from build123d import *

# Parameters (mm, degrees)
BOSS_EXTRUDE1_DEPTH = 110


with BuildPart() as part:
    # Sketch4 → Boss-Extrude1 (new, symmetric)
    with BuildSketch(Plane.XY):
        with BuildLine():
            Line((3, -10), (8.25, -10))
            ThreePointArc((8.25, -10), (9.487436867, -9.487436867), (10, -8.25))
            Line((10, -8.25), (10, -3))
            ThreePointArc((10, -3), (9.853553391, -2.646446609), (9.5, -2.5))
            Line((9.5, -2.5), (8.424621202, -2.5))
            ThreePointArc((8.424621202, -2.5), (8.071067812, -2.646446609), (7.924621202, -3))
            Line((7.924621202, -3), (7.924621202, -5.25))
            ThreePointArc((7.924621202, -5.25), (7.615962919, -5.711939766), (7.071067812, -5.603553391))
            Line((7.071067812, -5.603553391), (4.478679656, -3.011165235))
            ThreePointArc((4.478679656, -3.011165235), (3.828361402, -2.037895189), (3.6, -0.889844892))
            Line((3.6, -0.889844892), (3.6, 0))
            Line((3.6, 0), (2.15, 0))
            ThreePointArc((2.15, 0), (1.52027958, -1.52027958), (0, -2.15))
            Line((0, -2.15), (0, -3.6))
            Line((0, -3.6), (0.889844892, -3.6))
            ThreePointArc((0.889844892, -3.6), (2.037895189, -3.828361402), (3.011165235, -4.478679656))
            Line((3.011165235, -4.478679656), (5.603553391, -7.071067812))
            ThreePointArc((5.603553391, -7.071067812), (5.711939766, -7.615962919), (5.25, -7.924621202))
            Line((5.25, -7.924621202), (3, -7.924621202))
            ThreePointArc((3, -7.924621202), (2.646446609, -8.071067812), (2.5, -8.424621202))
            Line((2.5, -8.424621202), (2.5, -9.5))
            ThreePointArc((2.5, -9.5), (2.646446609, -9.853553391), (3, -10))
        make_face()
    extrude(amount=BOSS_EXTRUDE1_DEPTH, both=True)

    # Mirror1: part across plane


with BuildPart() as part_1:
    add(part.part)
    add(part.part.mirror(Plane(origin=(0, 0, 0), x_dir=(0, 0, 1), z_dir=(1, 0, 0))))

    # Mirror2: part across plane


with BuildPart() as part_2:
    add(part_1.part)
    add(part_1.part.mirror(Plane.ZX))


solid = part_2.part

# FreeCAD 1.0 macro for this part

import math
import FreeCAD as App
import Part
import Sketcher

V = App.Vector
Q = App.Units.Quantity

doc = App.newDocument("Part")
body = doc.addObject("PartDesign::Body", "Body")

# Sketch on XY plane
sketch1 = doc.addObject("Sketcher::SketchObject", "Sketch")
body.addObject(sketch1)
sketch1.AttachmentSupport = (doc.XY_Plane, [""])
sketch1.MapMode = "FlatFace"
sketch1.addGeometry([
    Part.LineSegment(V(3, -10, 0), V(8.25, -10, 0)),  # 0
    Part.ArcOfCircle(Part.Circle(V(8.25, -8.25, 0), V(0, 0, 1), 1.75), math.radians(-90), math.radians(0)),  # 1
    Part.LineSegment(V(10, -8.25, 0), V(10, -3, 0)),  # 2
    Part.ArcOfCircle(Part.Circle(V(9.5, -3, 0), V(0, 0, 1), 0.5), math.radians(0), math.radians(90)),  # 3
    Part.LineSegment(V(9.5, -2.5, 0), V(8.42, -2.5, 0)),  # 4
    Part.ArcOfCircle(Part.Circle(V(8.42, -3, 0), V(0, 0, 1), 0.5), math.radians(90), math.radians(180)),  # 5
    Part.LineSegment(V(7.92, -3, 0), V(7.92, -5.25, 0)),  # 6
    Part.ArcOfCircle(Part.Circle(V(7.42, -5.25, 0), V(0, 0, 1), 0.5), math.radians(-135), math.radians(0)),  # 7
    Part.LineSegment(V(7.07, -5.6, 0), V(4.48, -3.01, 0)),  # 8
    Part.ArcOfCircle(Part.Circle(V(6.6, -0.89, 0), V(0, 0, 1), 3), math.radians(180), math.radians(225)),  # 9
    Part.LineSegment(V(3.6, -0.89, 0), V(3.6, 0, 0)),  # 10
    Part.LineSegment(V(3.6, 0, 0), V(2.15, 0, 0)),  # 11
    Part.ArcOfCircle(Part.Circle(V(0, 0, 0), V(0, 0, 1), 2.15), math.radians(-90), math.radians(0)),  # 12
    Part.LineSegment(V(0, -2.15, 0), V(0, -3.6, 0)),  # 13
    Part.LineSegment(V(0, -3.6, 0), V(0.89, -3.6, 0)),  # 14
    Part.ArcOfCircle(Part.Circle(V(0.89, -6.6, 0), V(0, 0, 1), 3), math.radians(45), math.radians(90)),  # 15
    Part.LineSegment(V(3.01, -4.48, 0), V(5.6, -7.07, 0)),  # 16
    Part.ArcOfCircle(Part.Circle(V(5.25, -7.42, 0), V(0, 0, 1), 0.5), math.radians(-90), math.radians(45)),  # 17
    Part.LineSegment(V(5.25, -7.92, 0), V(3, -7.92, 0)),  # 18
    Part.ArcOfCircle(Part.Circle(V(3, -8.42, 0), V(0, 0, 1), 0.5), math.radians(90), math.radians(180)),  # 19
    Part.LineSegment(V(2.5, -8.42, 0), V(2.5, -9.5, 0)),  # 20
    Part.ArcOfCircle(Part.Circle(V(3, -9.5, 0), V(0, 0, 1), 0.5), math.radians(180), math.radians(270)),  # 21
], False)
sketch1.addConstraint([
    Sketcher.Constraint("Tangent", 0, 2, 1, 1),
    Sketcher.Constraint("Tangent", 1, 2, 2, 1),
    Sketcher.Constraint("Tangent", 2, 2, 3, 1),
    Sketcher.Constraint("Tangent", 3, 2, 4, 1),
    Sketcher.Constraint("Tangent", 4, 2, 5, 1),
    Sketcher.Constraint("Tangent", 5, 2, 6, 1),
    Sketcher.Constraint("Tangent", 6, 2, 7, 2),
    Sketcher.Constraint("Tangent", 7, 1, 8, 1),
    Sketcher.Constraint("Tangent", 8, 2, 9, 2),
    Sketcher.Constraint("Tangent", 9, 1, 10, 1),
    Sketcher.Constraint("Coincident", 10, 2, 11, 1),
    Sketcher.Constraint("Coincident", 11, 2, 12, 2),
    Sketcher.Constraint("Coincident", 12, 1, 13, 1),
    Sketcher.Constraint("Coincident", 13, 2, 14, 1),
    Sketcher.Constraint("Tangent", 14, 2, 15, 2),
    Sketcher.Constraint("Tangent", 15, 1, 16, 1),
    Sketcher.Constraint("Tangent", 16, 2, 17, 2),
    Sketcher.Constraint("Tangent", 17, 1, 18, 1),
    Sketcher.Constraint("Tangent", 18, 2, 19, 1),
    Sketcher.Constraint("Tangent", 19, 2, 20, 1),
    Sketcher.Constraint("Tangent", 20, 2, 21, 1),
    Sketcher.Constraint("Tangent", 21, 2, 0, 1),
    Sketcher.Constraint("Horizontal", 0),
    Sketcher.Constraint("Vertical", 2),
    Sketcher.Constraint("Horizontal", 4),
    Sketcher.Constraint("Vertical", 6),
    Sketcher.Constraint("Vertical", 10),
    Sketcher.Constraint("Horizontal", 11),
    Sketcher.Constraint("Vertical", 13),
    Sketcher.Constraint("Horizontal", 14),
    Sketcher.Constraint("Horizontal", 18),
    Sketcher.Constraint("Vertical", 20),
    Sketcher.Constraint("Coincident", 12, 3, -1, 1),
    Sketcher.Constraint("Equal", 3, 5),
    Sketcher.Constraint("Equal", 5, 7),
    Sketcher.Constraint("Equal", 9, 15),
    Sketcher.Constraint("Equal", 7, 17),
    Sketcher.Constraint("Equal", 17, 19),
    Sketcher.Constraint("Equal", 19, 21),
    Sketcher.Constraint("PointOnObject", 10, 2, -1),
    Sketcher.Constraint("PointOnObject", 12, 1, -2),
    Sketcher.Constraint("Parallel", 8, 16),
    Sketcher.Constraint("Equal", 0, 2),
    Sketcher.Constraint("Equal", 18, 6),
    Sketcher.Constraint("Equal", 14, 10),
    Sketcher.Constraint("Equal", 11, 13),
    Sketcher.Constraint("Equal", 4, 20),
    Sketcher.Constraint("Equal", 8, 16),
    Sketcher.Constraint("Radius", 9, Q("3 mm")),
    Sketcher.Constraint("Radius", 3, Q("0.5 mm")),
    Sketcher.Constraint("Radius", 1, Q("1.75 mm")),
    Sketcher.Constraint("Radius", 12, Q("2.15 mm")),
    Sketcher.Constraint("DistanceY", 3, 3, -1, 1, Q("3 mm")),
    Sketcher.Constraint("DistanceY", 0, 2, -1, 1, Q("10 mm")),
    Sketcher.Constraint("DistanceY", 1, 3, 7, 3, Q("3 mm")),
    Sketcher.Constraint("DistanceX", 11, 2, 11, 1, Q("1.45 mm")),
    Sketcher.Constraint("DistanceX", 4, 2, 4, 1, Q("1.075379 mm")),
])
pad1 = doc.addObject("PartDesign::Pad", "Pad")
body.addObject(pad1)
pad1.Profile = sketch1
pad1.Length = 220
pad1.Midplane = True
body2 = doc.addObject("PartDesign::Body", "Body001")
doc.recompute()

body2.BaseFeature = body
doc.recompute()

mirroring = doc.addObject("Part::Mirroring", "Mirroring")
mirroring.Source = body
mirroring.Base = V(0, 0, 0)
mirroring.Normal = V(1, 0, 0)
body3 = doc.addObject("PartDesign::Body", "Body002")
body3.BaseFeature = mirroring
boolean = doc.addObject("PartDesign::Boolean", "Boolean")
body2.addObject(boolean)
boolean.Type = "Fuse"
boolean.addObjects([body3])
doc.recompute()
body4 = doc.addObject("PartDesign::Body", "Body003")
doc.recompute()

body4.BaseFeature = body2
doc.recompute()

mirroring2 = doc.addObject("Part::Mirroring", "Mirroring001")
mirroring2.Source = body2
mirroring2.Base = V(0, 0, 0)
mirroring2.Normal = V(0, 1, 0)
body5 = doc.addObject("PartDesign::Body", "Body004")
body5.BaseFeature = mirroring2
boolean2 = doc.addObject("PartDesign::Boolean", "Boolean001")
body4.addObject(boolean2)
boolean2.Type = "Fuse"
boolean2.addObjects([body5])
doc.recompute()
mirroring.Visibility = False
mirroring2.Visibility = False

doc.recompute()
